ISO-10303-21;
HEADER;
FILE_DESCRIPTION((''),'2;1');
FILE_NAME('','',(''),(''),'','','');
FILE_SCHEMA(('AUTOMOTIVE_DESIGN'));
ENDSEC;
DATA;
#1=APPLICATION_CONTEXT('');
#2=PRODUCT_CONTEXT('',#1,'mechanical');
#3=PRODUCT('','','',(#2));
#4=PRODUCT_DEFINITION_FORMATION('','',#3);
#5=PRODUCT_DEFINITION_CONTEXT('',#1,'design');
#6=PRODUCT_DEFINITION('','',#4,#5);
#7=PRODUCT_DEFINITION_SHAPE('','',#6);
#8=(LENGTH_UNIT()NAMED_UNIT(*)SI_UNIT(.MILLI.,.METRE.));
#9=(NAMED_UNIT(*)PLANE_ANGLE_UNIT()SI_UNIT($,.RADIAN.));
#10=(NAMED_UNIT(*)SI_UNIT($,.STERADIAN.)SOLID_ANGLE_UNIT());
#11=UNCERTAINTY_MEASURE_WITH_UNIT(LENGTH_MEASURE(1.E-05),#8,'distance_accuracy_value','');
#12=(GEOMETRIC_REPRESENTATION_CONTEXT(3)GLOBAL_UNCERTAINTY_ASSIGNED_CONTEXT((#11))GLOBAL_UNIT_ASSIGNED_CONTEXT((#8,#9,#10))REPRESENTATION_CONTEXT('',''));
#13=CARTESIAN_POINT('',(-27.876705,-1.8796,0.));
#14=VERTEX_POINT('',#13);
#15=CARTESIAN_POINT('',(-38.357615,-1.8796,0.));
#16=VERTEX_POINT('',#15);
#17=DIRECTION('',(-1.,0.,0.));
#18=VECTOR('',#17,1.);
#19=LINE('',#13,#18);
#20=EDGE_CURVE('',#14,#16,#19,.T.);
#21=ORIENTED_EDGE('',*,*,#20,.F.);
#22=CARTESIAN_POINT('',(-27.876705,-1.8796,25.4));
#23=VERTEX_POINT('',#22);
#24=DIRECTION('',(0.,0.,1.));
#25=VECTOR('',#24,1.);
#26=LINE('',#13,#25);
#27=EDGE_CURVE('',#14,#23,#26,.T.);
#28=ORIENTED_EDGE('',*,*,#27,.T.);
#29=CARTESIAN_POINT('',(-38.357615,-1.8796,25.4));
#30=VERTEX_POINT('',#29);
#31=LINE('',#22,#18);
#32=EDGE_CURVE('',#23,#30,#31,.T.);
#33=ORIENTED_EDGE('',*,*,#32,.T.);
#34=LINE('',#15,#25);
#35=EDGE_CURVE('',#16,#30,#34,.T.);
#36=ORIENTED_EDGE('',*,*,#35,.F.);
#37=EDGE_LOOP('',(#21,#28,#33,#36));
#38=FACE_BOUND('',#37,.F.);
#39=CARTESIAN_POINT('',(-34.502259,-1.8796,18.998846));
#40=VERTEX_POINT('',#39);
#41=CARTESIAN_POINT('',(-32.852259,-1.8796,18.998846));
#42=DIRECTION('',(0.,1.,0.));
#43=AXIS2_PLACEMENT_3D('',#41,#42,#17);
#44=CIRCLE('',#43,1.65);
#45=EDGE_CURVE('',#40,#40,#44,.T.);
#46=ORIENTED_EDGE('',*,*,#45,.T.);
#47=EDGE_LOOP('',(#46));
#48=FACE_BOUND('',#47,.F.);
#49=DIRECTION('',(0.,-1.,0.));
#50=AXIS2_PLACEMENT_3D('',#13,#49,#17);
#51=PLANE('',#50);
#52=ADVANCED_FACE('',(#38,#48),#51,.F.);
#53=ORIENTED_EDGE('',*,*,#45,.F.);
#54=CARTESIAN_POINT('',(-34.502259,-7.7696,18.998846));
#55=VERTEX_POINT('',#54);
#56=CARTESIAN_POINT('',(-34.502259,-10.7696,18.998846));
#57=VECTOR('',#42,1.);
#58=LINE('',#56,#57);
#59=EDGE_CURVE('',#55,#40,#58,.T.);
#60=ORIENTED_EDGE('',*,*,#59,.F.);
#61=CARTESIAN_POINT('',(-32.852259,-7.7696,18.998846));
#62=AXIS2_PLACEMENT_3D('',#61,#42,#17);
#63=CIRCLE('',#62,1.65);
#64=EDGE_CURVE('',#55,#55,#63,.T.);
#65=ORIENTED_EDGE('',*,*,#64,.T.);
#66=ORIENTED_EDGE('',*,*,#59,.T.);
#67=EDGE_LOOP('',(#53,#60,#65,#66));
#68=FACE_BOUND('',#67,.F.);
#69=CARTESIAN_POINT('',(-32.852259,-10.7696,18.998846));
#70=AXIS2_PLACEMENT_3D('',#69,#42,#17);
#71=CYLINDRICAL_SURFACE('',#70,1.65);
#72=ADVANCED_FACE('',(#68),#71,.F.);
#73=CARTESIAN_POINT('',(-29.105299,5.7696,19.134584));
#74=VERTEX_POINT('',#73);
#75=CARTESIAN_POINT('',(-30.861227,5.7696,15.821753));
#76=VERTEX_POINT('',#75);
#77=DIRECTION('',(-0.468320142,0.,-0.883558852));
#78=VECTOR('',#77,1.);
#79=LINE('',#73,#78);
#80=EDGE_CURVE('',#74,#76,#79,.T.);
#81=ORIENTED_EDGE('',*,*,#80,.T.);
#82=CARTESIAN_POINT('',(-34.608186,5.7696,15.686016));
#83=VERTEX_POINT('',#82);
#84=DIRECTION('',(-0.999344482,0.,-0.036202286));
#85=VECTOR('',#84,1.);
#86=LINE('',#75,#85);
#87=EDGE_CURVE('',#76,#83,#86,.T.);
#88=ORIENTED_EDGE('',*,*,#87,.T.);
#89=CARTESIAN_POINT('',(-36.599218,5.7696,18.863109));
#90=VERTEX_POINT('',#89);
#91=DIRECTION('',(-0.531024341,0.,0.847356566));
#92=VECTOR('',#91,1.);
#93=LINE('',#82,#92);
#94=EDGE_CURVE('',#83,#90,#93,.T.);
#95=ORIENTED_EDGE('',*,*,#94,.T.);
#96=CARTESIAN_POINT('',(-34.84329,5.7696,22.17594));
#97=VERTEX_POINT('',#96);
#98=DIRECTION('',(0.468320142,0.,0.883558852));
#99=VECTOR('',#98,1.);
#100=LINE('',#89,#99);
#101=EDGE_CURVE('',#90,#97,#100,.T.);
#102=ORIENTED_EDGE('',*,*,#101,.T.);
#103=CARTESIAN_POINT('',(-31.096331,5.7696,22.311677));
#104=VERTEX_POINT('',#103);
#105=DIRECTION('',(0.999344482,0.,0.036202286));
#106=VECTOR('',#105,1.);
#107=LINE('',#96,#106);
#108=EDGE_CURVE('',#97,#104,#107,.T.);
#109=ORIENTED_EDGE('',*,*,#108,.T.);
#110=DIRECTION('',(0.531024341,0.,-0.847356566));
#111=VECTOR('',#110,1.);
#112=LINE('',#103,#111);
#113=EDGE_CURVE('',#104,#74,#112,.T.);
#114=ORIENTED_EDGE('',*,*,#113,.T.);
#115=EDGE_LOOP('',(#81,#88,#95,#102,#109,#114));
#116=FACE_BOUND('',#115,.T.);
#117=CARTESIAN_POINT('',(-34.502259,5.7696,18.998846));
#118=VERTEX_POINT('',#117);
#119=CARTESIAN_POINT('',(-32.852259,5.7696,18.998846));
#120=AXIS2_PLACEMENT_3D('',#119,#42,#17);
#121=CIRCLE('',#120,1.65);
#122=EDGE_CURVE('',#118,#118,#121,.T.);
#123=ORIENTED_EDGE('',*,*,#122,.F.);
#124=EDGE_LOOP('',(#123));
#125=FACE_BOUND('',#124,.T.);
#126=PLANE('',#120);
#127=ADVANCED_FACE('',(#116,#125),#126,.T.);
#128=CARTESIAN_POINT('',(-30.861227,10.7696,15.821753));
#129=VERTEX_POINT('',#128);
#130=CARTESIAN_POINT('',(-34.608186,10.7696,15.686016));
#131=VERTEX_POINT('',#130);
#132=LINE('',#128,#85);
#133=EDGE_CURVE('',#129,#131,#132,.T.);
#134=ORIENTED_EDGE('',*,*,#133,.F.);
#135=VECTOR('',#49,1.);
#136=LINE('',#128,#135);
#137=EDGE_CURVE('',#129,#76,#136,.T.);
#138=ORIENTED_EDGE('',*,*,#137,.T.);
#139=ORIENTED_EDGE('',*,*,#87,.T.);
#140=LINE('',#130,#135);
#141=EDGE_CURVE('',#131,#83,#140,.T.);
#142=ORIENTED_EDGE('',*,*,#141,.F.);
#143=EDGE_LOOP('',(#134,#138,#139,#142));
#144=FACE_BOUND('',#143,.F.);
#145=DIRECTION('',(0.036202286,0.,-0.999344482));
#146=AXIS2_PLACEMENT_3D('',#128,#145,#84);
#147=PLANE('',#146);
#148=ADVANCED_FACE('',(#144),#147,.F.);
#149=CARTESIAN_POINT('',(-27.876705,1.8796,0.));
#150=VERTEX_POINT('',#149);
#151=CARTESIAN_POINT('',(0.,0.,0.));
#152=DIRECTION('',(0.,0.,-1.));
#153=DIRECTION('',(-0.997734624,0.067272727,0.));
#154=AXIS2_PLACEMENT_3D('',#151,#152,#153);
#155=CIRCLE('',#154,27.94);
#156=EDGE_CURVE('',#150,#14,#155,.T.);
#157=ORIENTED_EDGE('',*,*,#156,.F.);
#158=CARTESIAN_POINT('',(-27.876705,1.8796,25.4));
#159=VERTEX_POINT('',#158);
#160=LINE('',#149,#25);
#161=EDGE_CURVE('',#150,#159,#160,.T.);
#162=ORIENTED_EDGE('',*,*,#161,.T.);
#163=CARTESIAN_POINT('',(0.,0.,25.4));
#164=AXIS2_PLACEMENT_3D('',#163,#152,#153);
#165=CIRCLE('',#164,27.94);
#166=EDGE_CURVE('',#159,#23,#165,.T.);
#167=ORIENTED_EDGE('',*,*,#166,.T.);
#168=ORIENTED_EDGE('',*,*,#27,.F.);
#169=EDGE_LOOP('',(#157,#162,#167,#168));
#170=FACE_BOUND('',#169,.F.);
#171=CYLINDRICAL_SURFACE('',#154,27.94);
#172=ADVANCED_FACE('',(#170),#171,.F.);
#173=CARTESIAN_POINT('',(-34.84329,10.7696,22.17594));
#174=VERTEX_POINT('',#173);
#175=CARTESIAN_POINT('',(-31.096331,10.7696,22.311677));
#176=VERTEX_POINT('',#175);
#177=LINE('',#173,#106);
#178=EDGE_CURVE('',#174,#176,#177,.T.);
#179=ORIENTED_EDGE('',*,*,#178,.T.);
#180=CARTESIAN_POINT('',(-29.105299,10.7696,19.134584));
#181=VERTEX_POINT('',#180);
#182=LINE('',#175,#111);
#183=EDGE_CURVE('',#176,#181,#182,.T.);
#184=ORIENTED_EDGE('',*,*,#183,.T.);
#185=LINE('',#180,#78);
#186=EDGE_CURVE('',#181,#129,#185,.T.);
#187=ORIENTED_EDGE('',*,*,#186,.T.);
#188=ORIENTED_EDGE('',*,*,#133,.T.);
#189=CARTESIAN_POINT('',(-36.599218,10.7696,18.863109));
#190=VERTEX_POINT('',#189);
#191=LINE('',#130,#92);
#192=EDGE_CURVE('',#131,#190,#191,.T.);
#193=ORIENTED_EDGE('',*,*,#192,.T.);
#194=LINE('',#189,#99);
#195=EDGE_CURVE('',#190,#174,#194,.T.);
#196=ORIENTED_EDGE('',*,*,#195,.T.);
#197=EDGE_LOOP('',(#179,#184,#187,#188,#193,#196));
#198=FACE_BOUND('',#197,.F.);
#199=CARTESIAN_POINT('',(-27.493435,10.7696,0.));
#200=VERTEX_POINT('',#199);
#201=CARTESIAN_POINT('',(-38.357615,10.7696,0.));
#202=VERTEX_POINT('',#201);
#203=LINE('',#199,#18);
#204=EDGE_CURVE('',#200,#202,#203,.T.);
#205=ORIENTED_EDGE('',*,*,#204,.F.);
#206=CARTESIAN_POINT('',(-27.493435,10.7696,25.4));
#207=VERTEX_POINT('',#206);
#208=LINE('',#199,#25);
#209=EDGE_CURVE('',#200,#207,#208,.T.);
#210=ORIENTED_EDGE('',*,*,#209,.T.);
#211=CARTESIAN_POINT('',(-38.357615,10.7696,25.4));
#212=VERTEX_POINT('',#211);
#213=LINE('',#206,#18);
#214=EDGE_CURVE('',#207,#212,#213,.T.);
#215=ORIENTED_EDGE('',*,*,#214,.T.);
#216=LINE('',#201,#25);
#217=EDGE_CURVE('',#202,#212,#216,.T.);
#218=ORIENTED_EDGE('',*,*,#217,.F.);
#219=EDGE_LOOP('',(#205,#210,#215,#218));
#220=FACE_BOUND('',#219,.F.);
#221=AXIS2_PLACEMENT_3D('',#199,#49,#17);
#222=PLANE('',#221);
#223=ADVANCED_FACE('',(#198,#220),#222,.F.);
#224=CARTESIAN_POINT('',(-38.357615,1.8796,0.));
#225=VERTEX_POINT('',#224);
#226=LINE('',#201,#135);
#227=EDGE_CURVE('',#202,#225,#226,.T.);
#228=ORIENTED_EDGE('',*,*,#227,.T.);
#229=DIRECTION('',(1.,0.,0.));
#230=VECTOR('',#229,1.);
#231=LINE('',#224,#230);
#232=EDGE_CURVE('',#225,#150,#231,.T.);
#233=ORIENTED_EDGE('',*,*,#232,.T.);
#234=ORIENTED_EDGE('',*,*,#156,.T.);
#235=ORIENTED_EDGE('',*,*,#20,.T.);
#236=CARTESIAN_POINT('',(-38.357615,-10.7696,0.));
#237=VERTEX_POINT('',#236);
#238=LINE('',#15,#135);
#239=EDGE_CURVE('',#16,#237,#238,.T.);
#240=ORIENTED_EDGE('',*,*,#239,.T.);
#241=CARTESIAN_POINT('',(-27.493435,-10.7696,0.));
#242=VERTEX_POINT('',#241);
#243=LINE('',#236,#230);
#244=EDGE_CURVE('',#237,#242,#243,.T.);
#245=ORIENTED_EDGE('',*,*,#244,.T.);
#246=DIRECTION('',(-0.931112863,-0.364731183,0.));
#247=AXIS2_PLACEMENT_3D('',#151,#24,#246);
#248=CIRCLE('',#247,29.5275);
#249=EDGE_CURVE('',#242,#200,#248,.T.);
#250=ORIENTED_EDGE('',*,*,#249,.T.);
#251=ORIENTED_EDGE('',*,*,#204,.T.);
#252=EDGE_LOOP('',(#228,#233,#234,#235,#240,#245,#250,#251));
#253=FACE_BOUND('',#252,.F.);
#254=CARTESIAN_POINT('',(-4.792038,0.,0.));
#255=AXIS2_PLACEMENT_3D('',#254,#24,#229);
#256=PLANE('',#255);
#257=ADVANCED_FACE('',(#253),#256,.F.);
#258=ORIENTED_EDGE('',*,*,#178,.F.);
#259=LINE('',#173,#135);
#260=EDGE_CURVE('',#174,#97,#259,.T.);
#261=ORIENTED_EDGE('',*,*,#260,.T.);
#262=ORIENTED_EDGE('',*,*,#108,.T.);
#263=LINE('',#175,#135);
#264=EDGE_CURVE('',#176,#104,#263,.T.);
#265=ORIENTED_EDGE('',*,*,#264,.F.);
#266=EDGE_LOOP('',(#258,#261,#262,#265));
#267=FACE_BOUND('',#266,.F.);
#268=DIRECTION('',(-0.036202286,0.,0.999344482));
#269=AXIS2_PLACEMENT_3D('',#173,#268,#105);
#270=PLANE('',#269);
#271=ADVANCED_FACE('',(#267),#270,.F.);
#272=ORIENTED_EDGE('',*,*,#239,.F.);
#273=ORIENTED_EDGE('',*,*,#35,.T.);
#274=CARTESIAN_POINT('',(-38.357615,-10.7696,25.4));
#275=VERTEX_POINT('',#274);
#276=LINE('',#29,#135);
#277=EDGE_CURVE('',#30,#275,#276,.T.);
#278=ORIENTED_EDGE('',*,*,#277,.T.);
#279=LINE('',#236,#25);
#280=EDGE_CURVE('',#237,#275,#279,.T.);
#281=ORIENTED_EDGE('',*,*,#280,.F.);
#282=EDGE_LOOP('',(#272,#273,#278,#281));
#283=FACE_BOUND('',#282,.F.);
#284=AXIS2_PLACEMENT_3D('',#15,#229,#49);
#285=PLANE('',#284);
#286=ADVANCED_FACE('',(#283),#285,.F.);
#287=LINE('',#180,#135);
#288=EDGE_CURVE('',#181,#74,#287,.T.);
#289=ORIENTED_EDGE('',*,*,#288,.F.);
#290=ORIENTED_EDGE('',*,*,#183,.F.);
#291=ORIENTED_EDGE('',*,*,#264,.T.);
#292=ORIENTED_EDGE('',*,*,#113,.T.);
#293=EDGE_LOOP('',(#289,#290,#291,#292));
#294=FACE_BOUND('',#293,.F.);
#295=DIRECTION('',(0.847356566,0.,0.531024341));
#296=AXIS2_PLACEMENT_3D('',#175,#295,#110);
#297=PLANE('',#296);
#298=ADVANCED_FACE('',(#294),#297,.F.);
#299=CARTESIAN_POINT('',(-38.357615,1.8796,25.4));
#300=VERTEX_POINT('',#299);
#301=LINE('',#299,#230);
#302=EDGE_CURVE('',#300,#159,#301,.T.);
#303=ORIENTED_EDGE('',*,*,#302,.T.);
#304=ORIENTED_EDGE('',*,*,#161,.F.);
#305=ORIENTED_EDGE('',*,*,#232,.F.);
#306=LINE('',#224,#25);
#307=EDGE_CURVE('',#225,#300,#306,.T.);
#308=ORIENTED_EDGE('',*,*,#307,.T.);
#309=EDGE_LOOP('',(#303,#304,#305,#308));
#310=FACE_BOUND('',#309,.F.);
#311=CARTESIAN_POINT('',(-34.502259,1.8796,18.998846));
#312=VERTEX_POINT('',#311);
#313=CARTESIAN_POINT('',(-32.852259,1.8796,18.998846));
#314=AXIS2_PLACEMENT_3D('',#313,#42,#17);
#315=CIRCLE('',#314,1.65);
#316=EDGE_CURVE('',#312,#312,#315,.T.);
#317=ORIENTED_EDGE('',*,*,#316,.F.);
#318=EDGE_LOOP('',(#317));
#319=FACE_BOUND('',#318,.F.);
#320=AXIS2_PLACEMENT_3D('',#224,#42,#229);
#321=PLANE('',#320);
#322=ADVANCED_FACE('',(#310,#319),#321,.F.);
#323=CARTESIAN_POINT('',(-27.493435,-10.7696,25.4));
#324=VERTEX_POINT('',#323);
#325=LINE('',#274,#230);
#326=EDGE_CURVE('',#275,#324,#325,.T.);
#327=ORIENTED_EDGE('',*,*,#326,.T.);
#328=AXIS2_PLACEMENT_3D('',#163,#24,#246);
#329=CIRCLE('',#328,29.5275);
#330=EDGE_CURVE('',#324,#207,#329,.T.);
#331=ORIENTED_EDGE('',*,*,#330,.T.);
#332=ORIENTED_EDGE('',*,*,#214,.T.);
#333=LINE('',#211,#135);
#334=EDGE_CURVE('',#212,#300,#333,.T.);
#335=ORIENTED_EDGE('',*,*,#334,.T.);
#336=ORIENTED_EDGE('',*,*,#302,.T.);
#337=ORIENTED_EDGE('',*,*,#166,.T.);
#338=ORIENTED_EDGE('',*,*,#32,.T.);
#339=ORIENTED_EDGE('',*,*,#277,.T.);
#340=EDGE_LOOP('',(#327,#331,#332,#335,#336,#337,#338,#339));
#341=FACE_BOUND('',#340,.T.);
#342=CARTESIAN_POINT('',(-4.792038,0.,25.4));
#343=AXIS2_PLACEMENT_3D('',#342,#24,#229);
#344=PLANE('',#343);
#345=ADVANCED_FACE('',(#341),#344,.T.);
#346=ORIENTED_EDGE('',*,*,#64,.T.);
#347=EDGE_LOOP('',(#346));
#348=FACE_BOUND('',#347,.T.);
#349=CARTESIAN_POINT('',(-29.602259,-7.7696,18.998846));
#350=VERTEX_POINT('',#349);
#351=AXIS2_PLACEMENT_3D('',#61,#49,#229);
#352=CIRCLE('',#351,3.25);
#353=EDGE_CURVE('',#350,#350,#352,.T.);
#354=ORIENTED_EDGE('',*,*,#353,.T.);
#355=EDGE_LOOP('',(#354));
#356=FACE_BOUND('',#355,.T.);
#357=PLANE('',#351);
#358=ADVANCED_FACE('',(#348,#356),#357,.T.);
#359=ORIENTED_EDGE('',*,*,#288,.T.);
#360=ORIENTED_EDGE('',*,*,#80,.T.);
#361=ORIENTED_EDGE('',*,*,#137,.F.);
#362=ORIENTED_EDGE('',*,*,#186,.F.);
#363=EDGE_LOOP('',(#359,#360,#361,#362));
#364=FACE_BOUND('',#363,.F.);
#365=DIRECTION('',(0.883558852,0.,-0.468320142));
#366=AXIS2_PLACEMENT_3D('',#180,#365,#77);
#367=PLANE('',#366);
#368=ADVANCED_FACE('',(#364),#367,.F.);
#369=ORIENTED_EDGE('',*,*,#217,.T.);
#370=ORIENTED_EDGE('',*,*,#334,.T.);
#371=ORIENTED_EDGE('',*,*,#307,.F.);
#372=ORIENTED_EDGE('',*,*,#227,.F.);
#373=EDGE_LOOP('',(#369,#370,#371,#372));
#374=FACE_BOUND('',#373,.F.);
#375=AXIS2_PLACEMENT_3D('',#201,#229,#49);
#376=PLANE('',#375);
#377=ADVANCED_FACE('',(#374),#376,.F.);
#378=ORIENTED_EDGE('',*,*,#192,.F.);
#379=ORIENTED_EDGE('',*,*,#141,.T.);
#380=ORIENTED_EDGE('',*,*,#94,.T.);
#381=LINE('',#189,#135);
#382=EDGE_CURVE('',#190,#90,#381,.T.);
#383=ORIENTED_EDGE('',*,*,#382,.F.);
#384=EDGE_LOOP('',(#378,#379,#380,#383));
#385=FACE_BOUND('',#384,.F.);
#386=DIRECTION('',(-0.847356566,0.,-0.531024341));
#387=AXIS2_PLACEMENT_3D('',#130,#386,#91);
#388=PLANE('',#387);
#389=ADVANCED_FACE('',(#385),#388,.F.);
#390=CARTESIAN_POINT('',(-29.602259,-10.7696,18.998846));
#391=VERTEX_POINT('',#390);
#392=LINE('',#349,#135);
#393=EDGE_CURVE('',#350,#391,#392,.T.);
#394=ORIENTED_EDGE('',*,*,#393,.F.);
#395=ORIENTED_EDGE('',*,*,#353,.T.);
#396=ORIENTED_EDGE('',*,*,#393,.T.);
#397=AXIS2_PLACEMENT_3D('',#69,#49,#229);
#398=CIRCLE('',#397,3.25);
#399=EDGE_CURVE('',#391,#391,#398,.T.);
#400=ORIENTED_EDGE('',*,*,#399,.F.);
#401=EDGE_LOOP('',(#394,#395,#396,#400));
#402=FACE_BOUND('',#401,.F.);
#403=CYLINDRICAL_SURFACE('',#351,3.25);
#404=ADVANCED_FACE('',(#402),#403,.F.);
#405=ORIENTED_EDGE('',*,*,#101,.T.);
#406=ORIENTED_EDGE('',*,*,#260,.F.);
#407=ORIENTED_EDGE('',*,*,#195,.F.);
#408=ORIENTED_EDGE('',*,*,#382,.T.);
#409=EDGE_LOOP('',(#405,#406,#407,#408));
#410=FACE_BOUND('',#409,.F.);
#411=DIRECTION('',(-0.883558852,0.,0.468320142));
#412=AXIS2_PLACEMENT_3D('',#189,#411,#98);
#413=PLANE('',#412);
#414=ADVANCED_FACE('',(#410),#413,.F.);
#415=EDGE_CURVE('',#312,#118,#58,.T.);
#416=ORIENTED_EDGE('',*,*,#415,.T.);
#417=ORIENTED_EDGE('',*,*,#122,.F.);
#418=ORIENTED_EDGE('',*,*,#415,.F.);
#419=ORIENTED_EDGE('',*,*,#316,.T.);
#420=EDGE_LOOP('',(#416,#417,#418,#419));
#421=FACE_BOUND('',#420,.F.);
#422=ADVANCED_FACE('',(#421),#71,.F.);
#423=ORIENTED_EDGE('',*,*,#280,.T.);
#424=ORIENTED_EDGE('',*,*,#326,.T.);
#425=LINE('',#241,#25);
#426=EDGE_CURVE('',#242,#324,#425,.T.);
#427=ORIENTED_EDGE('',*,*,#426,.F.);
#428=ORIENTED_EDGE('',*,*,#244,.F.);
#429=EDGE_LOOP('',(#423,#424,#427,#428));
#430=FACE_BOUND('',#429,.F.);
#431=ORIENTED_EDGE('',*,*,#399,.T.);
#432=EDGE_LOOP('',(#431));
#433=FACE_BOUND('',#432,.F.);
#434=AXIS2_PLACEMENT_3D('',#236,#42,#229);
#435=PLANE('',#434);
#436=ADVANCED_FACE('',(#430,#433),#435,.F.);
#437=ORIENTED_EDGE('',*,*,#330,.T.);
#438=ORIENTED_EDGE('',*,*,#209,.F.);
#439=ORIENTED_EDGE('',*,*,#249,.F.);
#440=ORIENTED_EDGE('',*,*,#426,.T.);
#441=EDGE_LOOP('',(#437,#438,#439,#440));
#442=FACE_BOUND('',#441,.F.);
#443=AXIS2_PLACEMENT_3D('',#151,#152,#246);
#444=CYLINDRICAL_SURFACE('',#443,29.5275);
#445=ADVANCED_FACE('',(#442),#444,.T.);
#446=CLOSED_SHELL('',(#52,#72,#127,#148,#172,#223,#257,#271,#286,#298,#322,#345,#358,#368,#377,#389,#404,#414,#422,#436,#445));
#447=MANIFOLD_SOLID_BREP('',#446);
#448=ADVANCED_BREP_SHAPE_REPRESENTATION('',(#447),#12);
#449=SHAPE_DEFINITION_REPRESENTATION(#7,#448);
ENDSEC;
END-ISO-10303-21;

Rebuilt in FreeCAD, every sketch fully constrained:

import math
import FreeCAD as App
import Part
import Sketcher
from FreeCAD import Vector
Q = App.Units.Quantity

doc = App.newDocument("Part")
body = doc.addObject("PartDesign::Body", "Body")

# Sketch on XY plane
sketch1 = body.newObject("Sketcher::SketchObject", "Sketch")
sketch1.AttachmentSupport = (doc.getObject("XY_Plane"), [""])
sketch1.MapMode = "FlatFace"
sketch1.addGeometry([
    Part.ArcOfCircle(Part.Circle(Vector(0, 0, 0), Vector(0, 0, 1), 27.9), math.radians(-176), math.radians(176)),  # 0
    Part.LineSegment(Vector(-27.9, -1.9, 0), Vector(-38.4, -1.9, 0)),  # 1
    Part.LineSegment(Vector(-38.4, -1.9, 0), Vector(-38.4, -10.8, 0)),  # 2
    Part.LineSegment(Vector(-38.4, -10.8, 0), Vector(-27.5, -10.8, 0)),  # 3
    Part.ArcOfCircle(Part.Circle(Vector(0, 0, 0), Vector(0, 0, 1), 29.5), math.radians(-159), math.radians(159)),  # 4
    Part.LineSegment(Vector(-27.5, 10.8, 0), Vector(-38.4, 10.8, 0)),  # 5
    Part.LineSegment(Vector(-38.4, 10.8, 0), Vector(-38.4, 1.9, 0)),  # 6
    Part.LineSegment(Vector(-38.4, 1.9, 0), Vector(-27.9, 1.9, 0)),  # 7
], False)
sketch1.addConstraint([
    Sketcher.Constraint("Coincident", 0, 1, 1, 1),
    Sketcher.Constraint("Coincident", 1, 2, 2, 1),
    Sketcher.Constraint("Coincident", 2, 2, 3, 1),
    Sketcher.Constraint("Coincident", 3, 2, 4, 1),
    Sketcher.Constraint("Coincident", 4, 2, 5, 1),
    Sketcher.Constraint("Coincident", 5, 2, 6, 1),
    Sketcher.Constraint("Coincident", 6, 2, 7, 1),
    Sketcher.Constraint("Coincident", 7, 2, 0, 2),
    Sketcher.Constraint("Horizontal", 1),
    Sketcher.Constraint("Vertical", 2),
    Sketcher.Constraint("Horizontal", 3),
    Sketcher.Constraint("Horizontal", 5),
    Sketcher.Constraint("Vertical", 6),
    Sketcher.Constraint("Horizontal", 7),
    Sketcher.Constraint("Coincident", 0, 3, -1, 1),
    Sketcher.Constraint("Coincident", 4, 3, -1, 1),
    Sketcher.Constraint("Symmetric", 2, 2, 5, 2, -1),
    Sketcher.Constraint("Vertical", 0, 1, 7, 2),
    Sketcher.Constraint("Radius", 0, Q("1.1 in")),
    Sketcher.Constraint("DistanceY", 2, 2, 2, 1, Q("0.35 in")),
    Sketcher.Constraint("Radius", 4, Q("1.1625 in")),
    Sketcher.Constraint("DistanceY", 0, 1, -1, 1, Q("0.074 in")),
    Sketcher.Constraint("DistanceX", 1, 2, 1, 1, Q("10.48091 mm")),
])
pad1 = body.newObject("PartDesign::Pad", "Pad")
pad1.Profile = sketch1
pad1.Length = Q("1 in")

# Sketch on XZ plane
sketch2 = body.newObject("Sketcher::SketchObject", "Sketch001")
sketch2.AttachmentSupport = (doc.getObject("XZ_Plane"), [""])
sketch2.MapMode = "FlatFace"
sketch2.AttachmentOffset = App.Placement(Vector(0, 0, 0.424 * 25.4), App.Rotation())
sketch2.addGeometry(Part.Circle(Vector(-32.9, 19, 0), Vector(0, 0, 1), 1.6), False)
sketch2.addConstraint([
    Sketcher.Constraint("Diameter", 0, Q("3.3 mm")),
    Sketcher.Constraint("DistanceX", 0, 3, -1, 1, Q("32.852259 mm")),
    Sketcher.Constraint("DistanceY", -1, 1, 0, 3, Q("18.998846 mm")),
])
doc.recompute()
hole = body.newObject("PartDesign::Hole", "Hole")
hole.Profile = sketch2
hole.ThreadType = "None"
hole.Diameter = 3.3
hole.DepthType = "ThroughAll"
hole.HoleCutType = "Counterbore"
hole.HoleCutDiameter = 6.5
hole.HoleCutDepth = 3

# Sketch on XZ plane
sketch3 = body.newObject("Sketcher::SketchObject", "Sketch002")
sketch3.AttachmentSupport = (doc.getObject("XZ_Plane"), [""])
sketch3.MapMode = "FlatFace"
sketch3.AttachmentOffset = App.Placement(Vector(0, 0, -0.424 * 25.4), App.Rotation())
sketch3.addGeometry([
    Part.LineSegment(Vector(-34.6, 15.7, 0), Vector(-36.6, 18.9, 0)),  # 0
    Part.LineSegment(Vector(-36.6, 18.9, 0), Vector(-34.8, 22.2, 0)),  # 1
    Part.LineSegment(Vector(-34.8, 22.2, 0), Vector(-31.1, 22.3, 0)),  # 2
    Part.LineSegment(Vector(-31.1, 22.3, 0), Vector(-29.1, 19.1, 0)),  # 3
    Part.LineSegment(Vector(-29.1, 19.1, 0), Vector(-30.9, 15.8, 0)),  # 4
    Part.LineSegment(Vector(-30.9, 15.8, 0), Vector(-34.6, 15.7, 0)),  # 5
], False)
sketch3.addConstraint([
    Sketcher.Constraint("Coincident", 0, 2, 1, 1),
    Sketcher.Constraint("Coincident", 1, 2, 2, 1),
    Sketcher.Constraint("Coincident", 2, 2, 3, 1),
    Sketcher.Constraint("Coincident", 3, 2, 4, 1),
    Sketcher.Constraint("Coincident", 4, 2, 5, 1),
    Sketcher.Constraint("Coincident", 5, 2, 0, 1),
    Sketcher.Constraint("Parallel", 0, 3),
    Sketcher.Constraint("Parallel", 1, 4),
    Sketcher.Constraint("Parallel", 2, 5),
    Sketcher.Constraint("Equal", 0, 1),
    Sketcher.Constraint("Equal", 1, 2),
    Sketcher.Constraint("Equal", 2, 3),
    Sketcher.Constraint("DistanceX", 3, 2, -1, 1, Q("29.105299 mm")),
    Sketcher.Constraint("DistanceY", -1, 1, 0, 2, Q("18.863109 mm")),
    Sketcher.Constraint("DistanceX", 1, 2, -1, 1, Q("34.84329 mm")),
    Sketcher.Constraint("DistanceY", -1, 1, 1, 2, Q("22.17594 mm")),
    Sketcher.Constraint("DistanceX", 2, 2, -1, 1, Q("31.096331 mm")),
    Sketcher.Constraint("DistanceY", 0, 2, 2, 2, Q("3.448568 mm")),
])
pocket1 = body.newObject("PartDesign::Pocket", "Pocket")
pocket1.Profile = sketch3
pocket1.Length = 5
pocket1.Reversed = True

doc.recompute()
